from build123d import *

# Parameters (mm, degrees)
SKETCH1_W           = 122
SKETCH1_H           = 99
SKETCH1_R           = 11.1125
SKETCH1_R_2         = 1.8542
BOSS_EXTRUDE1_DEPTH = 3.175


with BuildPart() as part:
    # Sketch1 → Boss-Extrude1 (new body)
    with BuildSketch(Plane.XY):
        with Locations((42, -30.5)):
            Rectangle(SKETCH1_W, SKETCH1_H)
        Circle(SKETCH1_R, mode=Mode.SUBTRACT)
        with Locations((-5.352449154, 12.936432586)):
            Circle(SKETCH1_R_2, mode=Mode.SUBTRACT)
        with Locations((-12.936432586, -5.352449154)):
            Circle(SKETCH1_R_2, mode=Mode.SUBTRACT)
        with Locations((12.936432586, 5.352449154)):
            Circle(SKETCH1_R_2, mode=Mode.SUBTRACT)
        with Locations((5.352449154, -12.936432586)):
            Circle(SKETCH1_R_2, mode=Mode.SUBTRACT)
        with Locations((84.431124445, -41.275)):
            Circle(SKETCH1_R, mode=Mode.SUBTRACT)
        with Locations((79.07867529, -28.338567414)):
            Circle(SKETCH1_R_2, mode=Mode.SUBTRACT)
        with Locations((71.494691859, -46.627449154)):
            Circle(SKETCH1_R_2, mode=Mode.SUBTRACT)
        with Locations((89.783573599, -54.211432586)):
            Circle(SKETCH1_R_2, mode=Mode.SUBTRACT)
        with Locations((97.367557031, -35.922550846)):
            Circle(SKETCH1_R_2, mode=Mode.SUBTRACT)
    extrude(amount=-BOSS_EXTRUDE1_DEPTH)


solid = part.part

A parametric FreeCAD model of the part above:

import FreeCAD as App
import Part
import Sketcher
from FreeCAD import Vector
Q = App.Units.Quantity


def add_polygon(sketch, points):
    """Adds a closed chain of lines whose ends are joined by coincident constraints."""
    first, n = sketch.GeometryCount, len(points)
    for a, b in zip(points, points[1:] + points[:1]):
        sketch.addGeometry(Part.LineSegment(App.Vector(*a, 0), App.Vector(*b, 0)), False)
    for i in range(n):
        sketch.addConstraint(Sketcher.Constraint("Coincident", first + i, 2, first + (i + 1) % n, 1))

doc = App.newDocument("Part")
body = doc.addObject("PartDesign::Body", "Body")

sketch1 = doc.addObject("Sketcher::SketchObject", "Sketch")
body.addObject(sketch1)
sketch1.AttachmentSupport = (doc.XY_Plane, [""])
sketch1.MapMode = "FlatFace"
add_polygon(sketch1, [(-19, 19), (-19, -80), (103, -80), (103, 19)])
sketch1.addGeometry(Part.Circle(Vector(89.783574, -54.211433, 0), Vector(0, 0, 1), 1.8542), False)
sketch1.addGeometry(Part.Circle(Vector(71.494692, -46.627449, 0), Vector(0, 0, 1), 1.8542), False)
sketch1.addGeometry(Part.Circle(Vector(84.431124, -41.275, 0), Vector(0, 0, 1), 11.1125), False)
sketch1.addGeometry(Part.Circle(Vector(97.367557, -35.922551, 0), Vector(0, 0, 1), 1.8542), False)
sketch1.addGeometry(Part.Circle(Vector(79.078675, -28.338567, 0), Vector(0, 0, 1), 1.8542), False)
sketch1.addGeometry(Part.Circle(Vector(5.352449, -12.936433, 0), Vector(0, 0, 1), 1.8542), False)
sketch1.addGeometry(Part.Circle(Vector(-12.936433, -5.352449, 0), Vector(0, 0, 1), 1.8542), False)
sketch1.addGeometry(Part.Circle(Vector(0, 0, 0), Vector(0, 0, 1), 11.1125), False)
sketch1.addGeometry(Part.Circle(Vector(12.936433, 5.352449, 0), Vector(0, 0, 1), 1.8542), False)
sketch1.addGeometry(Part.Circle(Vector(-5.352449, 12.936433, 0), Vector(0, 0, 1), 1.8542), False)
sketch1.addConstraint([
    Sketcher.Constraint("Vertical", 0),
    Sketcher.Constraint("Horizontal", 1),
    Sketcher.Constraint("Vertical", 2),
    Sketcher.Constraint("Horizontal", 3),
    Sketcher.Constraint("Coincident", 11, 3, -1, 1),
    Sketcher.Constraint("Equal", 4, 5),
    Sketcher.Constraint("Equal", 5, 7),
    Sketcher.Constraint("Equal", 7, 8),
    Sketcher.Constraint("Equal", 8, 9),
    Sketcher.Constraint("Equal", 9, 10),
    Sketcher.Constraint("Equal", 6, 11),
    Sketcher.Constraint("Equal", 10, 12),
    Sketcher.Constraint("Equal", 12, 13),
    Sketcher.Constraint("Symmetric", 10, 3, 12, 3, -1, 1),
    Sketcher.Constraint("Symmetric", 9, 3, 13, 3, -1, 1),
    Sketcher.Constraint("Diameter", 4, Q("0.146 in")),
    Sketcher.Constraint("Diameter", 6, Q("0.875 in")),
    Sketcher.Constraint("DistanceY", 6, 3, -1, 1, Q("1.625 in")),
    Sketcher.Constraint("DistanceY", 4, 3, 9, 3, Q("1.625 in")),
    Sketcher.Constraint("DistanceY", 5, 3, 10, 3, Q("1.625 in")),
    Sketcher.Constraint("DistanceY", 8, 3, 13, 3, Q("1.625 in")),
    Sketcher.Constraint("DistanceX", 1, 1, 1, 2, 122.0),
    Sketcher.Constraint("DistanceY", 0, 2, 0, 1, 99.0),
    Sketcher.Constraint("DistanceX", 0, 2, -1, 1, 19.0),
    Sketcher.Constraint("DistanceY", 0, 2, -1, 1, 80.0),
    Sketcher.Constraint("DistanceY", 5, 3, 7, 3, 10.704898),
    Sketcher.Constraint("DistanceX", 8, 3, 4, 3, 10.704898),
    Sketcher.Constraint("DistanceY", 10, 3, 12, 3, 10.704898),
    Sketcher.Constraint("DistanceX", 13, 3, 9, 3, 10.704898),
    Sketcher.Constraint("DistanceX", -1, 1, 5, 3, 71.494692),
    Sketcher.Constraint("DistanceX", 5, 3, 4, 3, 18.288882),
    Sketcher.Constraint("DistanceX", 6, 3, 4, 3, 5.352449),
    Sketcher.Constraint("DistanceY", 4, 3, 7, 3, 18.288882),
    Sketcher.Constraint("DistanceX", 8, 3, 7, 3, 18.288882),
    Sketcher.Constraint("DistanceX", 10, 3, 9, 3, 18.288882),
])
pad1 = doc.addObject("PartDesign::Pad", "Pad")
body.addObject(pad1)
pad1.Profile = sketch1
pad1.Length = Q("0.125 in")
pad1.Reversed = True

doc.recompute()
